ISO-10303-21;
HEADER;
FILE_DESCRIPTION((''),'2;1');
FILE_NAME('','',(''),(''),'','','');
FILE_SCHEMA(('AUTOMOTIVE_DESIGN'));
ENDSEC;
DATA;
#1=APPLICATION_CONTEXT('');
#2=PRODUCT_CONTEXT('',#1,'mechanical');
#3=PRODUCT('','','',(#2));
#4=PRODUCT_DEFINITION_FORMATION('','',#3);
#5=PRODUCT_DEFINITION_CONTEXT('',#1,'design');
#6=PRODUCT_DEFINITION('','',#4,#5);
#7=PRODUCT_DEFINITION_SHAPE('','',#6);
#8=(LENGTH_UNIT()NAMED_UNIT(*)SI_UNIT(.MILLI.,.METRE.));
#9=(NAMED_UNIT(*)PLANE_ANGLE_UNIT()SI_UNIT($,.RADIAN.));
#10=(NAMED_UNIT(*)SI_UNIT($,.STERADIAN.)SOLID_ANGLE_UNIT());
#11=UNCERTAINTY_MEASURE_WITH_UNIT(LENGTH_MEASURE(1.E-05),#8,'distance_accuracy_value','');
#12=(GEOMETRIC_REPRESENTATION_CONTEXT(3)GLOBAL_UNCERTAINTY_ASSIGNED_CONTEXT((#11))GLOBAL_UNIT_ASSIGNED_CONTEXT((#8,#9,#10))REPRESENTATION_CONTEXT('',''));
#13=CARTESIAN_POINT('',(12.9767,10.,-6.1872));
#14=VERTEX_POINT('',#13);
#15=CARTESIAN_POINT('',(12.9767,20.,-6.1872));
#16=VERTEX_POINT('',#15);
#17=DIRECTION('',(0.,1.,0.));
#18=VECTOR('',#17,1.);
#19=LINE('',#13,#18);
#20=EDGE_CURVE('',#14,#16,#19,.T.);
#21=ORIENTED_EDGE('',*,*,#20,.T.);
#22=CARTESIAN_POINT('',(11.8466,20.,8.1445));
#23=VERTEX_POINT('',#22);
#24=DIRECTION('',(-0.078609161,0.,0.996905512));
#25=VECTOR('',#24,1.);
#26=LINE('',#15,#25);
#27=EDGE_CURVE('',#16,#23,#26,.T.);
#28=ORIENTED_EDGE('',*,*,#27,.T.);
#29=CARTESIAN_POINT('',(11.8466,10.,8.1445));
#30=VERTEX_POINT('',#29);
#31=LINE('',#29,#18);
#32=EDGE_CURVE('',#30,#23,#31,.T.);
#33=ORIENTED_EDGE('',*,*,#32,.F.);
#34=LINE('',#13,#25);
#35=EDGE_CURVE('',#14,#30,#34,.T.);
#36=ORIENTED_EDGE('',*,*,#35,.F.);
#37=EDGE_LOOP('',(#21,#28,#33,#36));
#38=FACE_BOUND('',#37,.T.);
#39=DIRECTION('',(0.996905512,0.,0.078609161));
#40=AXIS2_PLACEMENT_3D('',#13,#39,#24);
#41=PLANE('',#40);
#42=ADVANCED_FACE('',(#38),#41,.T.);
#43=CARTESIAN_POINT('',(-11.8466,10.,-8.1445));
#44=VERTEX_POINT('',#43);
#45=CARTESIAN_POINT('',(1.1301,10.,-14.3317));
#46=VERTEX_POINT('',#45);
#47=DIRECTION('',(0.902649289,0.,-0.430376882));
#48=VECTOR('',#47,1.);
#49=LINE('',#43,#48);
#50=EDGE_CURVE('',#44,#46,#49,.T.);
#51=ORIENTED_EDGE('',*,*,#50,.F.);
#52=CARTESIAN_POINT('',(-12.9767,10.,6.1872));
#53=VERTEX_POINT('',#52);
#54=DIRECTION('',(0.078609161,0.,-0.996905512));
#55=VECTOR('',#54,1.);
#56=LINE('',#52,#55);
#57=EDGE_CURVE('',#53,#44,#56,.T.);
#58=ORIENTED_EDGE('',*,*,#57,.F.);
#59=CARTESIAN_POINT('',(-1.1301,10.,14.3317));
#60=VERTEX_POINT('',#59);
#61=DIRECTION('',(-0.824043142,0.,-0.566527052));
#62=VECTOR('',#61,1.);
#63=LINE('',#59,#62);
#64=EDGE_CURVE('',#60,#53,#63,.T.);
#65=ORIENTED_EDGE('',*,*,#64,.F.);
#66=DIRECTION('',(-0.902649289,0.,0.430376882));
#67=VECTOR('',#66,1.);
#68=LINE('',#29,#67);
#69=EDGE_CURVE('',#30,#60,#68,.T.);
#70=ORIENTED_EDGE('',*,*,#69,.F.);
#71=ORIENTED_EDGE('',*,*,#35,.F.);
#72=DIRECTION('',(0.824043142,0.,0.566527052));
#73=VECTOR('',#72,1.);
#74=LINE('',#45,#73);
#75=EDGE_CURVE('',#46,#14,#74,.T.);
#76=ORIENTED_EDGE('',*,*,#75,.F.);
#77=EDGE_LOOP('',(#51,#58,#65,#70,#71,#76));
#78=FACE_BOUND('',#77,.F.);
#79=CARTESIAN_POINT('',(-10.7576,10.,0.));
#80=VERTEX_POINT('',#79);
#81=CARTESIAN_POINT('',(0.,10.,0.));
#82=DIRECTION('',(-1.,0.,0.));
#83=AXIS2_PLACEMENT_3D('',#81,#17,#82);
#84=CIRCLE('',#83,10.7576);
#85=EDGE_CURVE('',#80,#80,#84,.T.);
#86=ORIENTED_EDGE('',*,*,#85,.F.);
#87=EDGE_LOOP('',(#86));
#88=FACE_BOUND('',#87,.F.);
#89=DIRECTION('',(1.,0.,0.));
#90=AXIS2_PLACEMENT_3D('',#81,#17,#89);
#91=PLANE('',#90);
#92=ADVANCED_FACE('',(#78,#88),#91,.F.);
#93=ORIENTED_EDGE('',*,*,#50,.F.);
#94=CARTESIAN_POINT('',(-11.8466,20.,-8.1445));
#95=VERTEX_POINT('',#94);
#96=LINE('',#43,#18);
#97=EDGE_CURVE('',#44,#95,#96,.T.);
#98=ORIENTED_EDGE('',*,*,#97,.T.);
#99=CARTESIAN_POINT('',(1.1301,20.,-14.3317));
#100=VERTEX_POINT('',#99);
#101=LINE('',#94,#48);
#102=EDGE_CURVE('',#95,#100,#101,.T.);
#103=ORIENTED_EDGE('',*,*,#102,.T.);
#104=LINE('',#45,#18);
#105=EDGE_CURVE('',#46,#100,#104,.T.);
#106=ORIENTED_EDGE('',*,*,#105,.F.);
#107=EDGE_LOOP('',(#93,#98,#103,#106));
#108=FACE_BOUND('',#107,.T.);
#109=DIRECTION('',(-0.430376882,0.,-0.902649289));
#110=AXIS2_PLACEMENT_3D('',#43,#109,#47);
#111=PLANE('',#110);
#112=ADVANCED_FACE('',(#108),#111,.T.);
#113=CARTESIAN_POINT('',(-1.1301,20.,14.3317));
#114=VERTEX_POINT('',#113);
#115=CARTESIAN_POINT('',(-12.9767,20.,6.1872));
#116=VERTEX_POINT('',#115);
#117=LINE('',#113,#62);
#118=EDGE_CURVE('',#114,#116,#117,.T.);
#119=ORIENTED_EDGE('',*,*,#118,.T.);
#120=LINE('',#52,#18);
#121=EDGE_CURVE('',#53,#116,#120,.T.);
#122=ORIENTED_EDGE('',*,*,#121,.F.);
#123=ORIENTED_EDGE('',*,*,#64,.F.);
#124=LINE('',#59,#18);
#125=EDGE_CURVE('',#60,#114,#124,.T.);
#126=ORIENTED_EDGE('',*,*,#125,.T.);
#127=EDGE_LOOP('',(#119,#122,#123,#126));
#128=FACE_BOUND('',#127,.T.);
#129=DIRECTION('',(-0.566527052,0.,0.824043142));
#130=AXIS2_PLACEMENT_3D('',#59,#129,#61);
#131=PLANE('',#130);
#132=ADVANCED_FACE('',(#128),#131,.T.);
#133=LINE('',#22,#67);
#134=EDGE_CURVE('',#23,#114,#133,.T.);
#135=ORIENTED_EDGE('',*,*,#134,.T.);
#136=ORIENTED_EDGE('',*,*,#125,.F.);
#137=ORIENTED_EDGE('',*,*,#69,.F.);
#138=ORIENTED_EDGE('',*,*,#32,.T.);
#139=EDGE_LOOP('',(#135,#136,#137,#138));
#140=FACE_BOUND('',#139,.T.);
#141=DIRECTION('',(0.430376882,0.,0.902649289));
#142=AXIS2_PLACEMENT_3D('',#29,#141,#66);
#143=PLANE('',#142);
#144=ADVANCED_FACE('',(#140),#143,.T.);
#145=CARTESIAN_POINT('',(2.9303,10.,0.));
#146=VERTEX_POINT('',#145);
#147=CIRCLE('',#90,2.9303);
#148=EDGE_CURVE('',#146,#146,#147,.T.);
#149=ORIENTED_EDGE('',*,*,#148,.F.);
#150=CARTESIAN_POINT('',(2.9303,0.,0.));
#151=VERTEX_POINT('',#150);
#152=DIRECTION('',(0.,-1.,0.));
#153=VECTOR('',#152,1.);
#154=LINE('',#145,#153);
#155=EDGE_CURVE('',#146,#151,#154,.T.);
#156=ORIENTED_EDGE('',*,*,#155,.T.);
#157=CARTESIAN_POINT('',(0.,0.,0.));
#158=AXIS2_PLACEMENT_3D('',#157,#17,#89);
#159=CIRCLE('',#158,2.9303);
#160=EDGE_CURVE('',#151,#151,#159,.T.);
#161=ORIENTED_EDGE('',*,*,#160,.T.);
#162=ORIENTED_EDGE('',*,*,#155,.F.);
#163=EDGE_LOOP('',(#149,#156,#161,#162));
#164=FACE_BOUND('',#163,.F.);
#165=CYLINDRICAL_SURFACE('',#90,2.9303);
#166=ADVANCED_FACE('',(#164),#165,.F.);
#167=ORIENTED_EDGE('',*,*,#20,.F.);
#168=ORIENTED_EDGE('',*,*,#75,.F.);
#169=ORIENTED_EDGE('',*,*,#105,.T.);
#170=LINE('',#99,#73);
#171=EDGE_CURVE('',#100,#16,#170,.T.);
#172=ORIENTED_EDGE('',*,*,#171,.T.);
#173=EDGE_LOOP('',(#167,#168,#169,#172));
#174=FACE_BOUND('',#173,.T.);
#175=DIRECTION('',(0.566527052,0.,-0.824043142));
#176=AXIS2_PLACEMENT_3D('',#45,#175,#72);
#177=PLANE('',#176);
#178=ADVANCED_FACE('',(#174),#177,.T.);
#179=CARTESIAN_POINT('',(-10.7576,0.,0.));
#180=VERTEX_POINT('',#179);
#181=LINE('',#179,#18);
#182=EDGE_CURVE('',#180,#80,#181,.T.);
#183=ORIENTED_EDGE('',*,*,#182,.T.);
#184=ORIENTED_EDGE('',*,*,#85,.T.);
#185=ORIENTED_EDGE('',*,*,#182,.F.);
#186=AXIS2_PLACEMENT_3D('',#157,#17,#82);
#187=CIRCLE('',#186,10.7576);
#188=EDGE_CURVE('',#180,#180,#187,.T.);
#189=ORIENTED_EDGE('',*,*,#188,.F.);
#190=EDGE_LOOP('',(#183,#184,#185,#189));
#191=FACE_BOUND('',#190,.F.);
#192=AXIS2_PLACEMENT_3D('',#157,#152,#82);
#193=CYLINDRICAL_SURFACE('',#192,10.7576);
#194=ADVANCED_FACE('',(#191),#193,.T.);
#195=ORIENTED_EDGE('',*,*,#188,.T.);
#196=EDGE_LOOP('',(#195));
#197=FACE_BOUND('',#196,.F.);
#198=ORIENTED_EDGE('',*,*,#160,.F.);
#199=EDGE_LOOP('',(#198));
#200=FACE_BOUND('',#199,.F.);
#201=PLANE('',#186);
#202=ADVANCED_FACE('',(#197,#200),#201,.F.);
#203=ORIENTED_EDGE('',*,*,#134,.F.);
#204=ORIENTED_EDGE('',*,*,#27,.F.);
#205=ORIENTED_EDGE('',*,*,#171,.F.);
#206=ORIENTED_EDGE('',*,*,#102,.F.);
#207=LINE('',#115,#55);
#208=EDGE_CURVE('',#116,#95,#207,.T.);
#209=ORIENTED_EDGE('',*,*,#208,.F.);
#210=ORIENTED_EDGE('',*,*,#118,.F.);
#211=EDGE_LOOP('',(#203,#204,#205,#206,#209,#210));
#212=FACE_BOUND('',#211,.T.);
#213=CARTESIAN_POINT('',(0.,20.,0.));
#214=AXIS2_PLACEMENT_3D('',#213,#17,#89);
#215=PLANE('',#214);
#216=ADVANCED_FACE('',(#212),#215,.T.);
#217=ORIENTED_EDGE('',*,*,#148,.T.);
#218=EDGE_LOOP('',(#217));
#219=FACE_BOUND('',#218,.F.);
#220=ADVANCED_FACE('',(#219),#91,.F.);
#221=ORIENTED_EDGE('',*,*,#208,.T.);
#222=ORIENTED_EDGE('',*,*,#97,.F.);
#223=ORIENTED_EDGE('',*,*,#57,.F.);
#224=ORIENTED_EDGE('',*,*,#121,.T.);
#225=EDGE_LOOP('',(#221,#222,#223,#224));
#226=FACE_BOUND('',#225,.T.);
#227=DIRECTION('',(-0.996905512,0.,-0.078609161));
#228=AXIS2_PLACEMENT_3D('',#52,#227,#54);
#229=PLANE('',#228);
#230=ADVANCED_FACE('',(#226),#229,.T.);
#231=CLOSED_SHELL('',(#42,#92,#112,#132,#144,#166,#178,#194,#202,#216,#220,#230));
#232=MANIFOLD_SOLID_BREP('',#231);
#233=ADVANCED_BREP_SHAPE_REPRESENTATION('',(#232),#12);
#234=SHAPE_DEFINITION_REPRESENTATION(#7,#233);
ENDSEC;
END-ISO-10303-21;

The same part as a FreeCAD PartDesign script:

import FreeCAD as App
import Part
import Sketcher
from FreeCAD import Vector
Q = App.Units.Quantity


def add_polygon(sketch, points):
    """Adds a closed chain of lines whose ends are joined by coincident constraints."""
    first, n = sketch.GeometryCount, len(points)
    for a, b in zip(points, points[1:] + points[:1]):
        sketch.addGeometry(Part.LineSegment(App.Vector(*a, 0), App.Vector(*b, 0)), False)
    for i in range(n):
        sketch.addConstraint(Sketcher.Constraint("Coincident", first + i, 2, first + (i + 1) % n, 1))

doc = App.newDocument("Part")
params = doc.addObject("Spreadsheet::Sheet", "Params")
for row, (alias, value) in enumerate([
    ("pad1_length", "0.3937008 in"),
    ("pocket1_length", "0.3937008 in"),
    ("sketch3_length", "0.566 in"),
    ("pad2_length", "0.3937008 in"),
], start=1):
    params.set(f"A{row}", alias)
    params.set(f"B{row}", "=" + value)
    params.setAlias(f"B{row}", alias)

body = doc.addObject("PartDesign::Body", "Body")

# Sketch on XZ plane
sketch1 = doc.addObject("Sketcher::SketchObject", "Sketch")
body.addObject(sketch1)
sketch1.AttachmentSupport = (doc.XZ_Plane, [""])
sketch1.MapMode = "FlatFace"
sketch1.addGeometry(Part.Circle(Vector(0, 0, 0), Vector(0, 0, 1), 11), False)
sketch1.addConstraint([
    Sketcher.Constraint("Coincident", 0, 3, -1, 1),
    Sketcher.Constraint("Diameter", 0, 21.5152),
])
pad1 = doc.addObject("PartDesign::Pad", "Pad")
body.addObject(pad1)
pad1.Profile = sketch1
pad1.setExpression("Length", "Params.pad1_length")
pad1.Reversed = True

# Sketch on XZ plane
sketch2 = doc.addObject("Sketcher::SketchObject", "Sketch001")
body.addObject(sketch2)
sketch2.AttachmentSupport = (doc.XZ_Plane, [""])
sketch2.MapMode = "FlatFace"
sketch2.AttachmentOffset = App.Placement(Vector(0, 0, -0.3937008 * 25.4), App.Rotation())
sketch2.addGeometry(Part.Circle(Vector(0, 0, 0), Vector(0, 0, 1), 2.9), False)
sketch2.addConstraint([
    Sketcher.Constraint("Coincident", 0, 3, -1, 1),
    Sketcher.Constraint("Diameter", 0, 5.8606),
])
pocket1 = doc.addObject("PartDesign::Pocket", "Pocket")
body.addObject(pocket1)
pocket1.Profile = sketch2
pocket1.setExpression("Length", "Params.pocket1_length")
pocket1.Reversed = True

# Sketch on XZ plane
sketch3 = doc.addObject("Sketcher::SketchObject", "Sketch002")
body.addObject(sketch3)
sketch3.AttachmentSupport = (doc.XZ_Plane, [""])
sketch3.MapMode = "FlatFace"
sketch3.AttachmentOffset = App.Placement(Vector(0, 0, -0.3937008 * 25.4), App.Rotation())
add_polygon(sketch3, [(-1, 14), (12, 8), (13, -6), (1, -14), (-12, -8), (-13, 6)])  # lines 0-5
sketch3.addConstraint([
    Sketcher.Constraint("Symmetric", 0, 2, 3, 2, -1, 1),
    Sketcher.Constraint("Symmetric", 1, 2, 4, 2, -1, 1),
    Sketcher.Constraint("Symmetric", 2, 2, 5, 2, -1, 1),
    Sketcher.Constraint("Equal", 0, 1),
    Sketcher.Constraint("Equal", 1, 2),
    Sketcher.Constraint("Distance", 0, Q("0.566 in")),
    Sketcher.Constraint("DistanceX", -1, 1, 0, 2, Q("0.4664 in")),
    Sketcher.Constraint("DistanceX", -1, 1, 1, 2, Q("0.5109 in")),
    Sketcher.Constraint("DistanceY", 1, 2, -1, 1, Q("0.2436 in")),
])
sketch3.setExpression("Constraints[11]", "Params.sketch3_length")
pad2 = doc.addObject("PartDesign::Pad", "Pad001")
body.addObject(pad2)
pad2.Profile = sketch3
pad2.setExpression("Length", "Params.pad2_length")
pad2.Reversed = True

doc.recompute()
